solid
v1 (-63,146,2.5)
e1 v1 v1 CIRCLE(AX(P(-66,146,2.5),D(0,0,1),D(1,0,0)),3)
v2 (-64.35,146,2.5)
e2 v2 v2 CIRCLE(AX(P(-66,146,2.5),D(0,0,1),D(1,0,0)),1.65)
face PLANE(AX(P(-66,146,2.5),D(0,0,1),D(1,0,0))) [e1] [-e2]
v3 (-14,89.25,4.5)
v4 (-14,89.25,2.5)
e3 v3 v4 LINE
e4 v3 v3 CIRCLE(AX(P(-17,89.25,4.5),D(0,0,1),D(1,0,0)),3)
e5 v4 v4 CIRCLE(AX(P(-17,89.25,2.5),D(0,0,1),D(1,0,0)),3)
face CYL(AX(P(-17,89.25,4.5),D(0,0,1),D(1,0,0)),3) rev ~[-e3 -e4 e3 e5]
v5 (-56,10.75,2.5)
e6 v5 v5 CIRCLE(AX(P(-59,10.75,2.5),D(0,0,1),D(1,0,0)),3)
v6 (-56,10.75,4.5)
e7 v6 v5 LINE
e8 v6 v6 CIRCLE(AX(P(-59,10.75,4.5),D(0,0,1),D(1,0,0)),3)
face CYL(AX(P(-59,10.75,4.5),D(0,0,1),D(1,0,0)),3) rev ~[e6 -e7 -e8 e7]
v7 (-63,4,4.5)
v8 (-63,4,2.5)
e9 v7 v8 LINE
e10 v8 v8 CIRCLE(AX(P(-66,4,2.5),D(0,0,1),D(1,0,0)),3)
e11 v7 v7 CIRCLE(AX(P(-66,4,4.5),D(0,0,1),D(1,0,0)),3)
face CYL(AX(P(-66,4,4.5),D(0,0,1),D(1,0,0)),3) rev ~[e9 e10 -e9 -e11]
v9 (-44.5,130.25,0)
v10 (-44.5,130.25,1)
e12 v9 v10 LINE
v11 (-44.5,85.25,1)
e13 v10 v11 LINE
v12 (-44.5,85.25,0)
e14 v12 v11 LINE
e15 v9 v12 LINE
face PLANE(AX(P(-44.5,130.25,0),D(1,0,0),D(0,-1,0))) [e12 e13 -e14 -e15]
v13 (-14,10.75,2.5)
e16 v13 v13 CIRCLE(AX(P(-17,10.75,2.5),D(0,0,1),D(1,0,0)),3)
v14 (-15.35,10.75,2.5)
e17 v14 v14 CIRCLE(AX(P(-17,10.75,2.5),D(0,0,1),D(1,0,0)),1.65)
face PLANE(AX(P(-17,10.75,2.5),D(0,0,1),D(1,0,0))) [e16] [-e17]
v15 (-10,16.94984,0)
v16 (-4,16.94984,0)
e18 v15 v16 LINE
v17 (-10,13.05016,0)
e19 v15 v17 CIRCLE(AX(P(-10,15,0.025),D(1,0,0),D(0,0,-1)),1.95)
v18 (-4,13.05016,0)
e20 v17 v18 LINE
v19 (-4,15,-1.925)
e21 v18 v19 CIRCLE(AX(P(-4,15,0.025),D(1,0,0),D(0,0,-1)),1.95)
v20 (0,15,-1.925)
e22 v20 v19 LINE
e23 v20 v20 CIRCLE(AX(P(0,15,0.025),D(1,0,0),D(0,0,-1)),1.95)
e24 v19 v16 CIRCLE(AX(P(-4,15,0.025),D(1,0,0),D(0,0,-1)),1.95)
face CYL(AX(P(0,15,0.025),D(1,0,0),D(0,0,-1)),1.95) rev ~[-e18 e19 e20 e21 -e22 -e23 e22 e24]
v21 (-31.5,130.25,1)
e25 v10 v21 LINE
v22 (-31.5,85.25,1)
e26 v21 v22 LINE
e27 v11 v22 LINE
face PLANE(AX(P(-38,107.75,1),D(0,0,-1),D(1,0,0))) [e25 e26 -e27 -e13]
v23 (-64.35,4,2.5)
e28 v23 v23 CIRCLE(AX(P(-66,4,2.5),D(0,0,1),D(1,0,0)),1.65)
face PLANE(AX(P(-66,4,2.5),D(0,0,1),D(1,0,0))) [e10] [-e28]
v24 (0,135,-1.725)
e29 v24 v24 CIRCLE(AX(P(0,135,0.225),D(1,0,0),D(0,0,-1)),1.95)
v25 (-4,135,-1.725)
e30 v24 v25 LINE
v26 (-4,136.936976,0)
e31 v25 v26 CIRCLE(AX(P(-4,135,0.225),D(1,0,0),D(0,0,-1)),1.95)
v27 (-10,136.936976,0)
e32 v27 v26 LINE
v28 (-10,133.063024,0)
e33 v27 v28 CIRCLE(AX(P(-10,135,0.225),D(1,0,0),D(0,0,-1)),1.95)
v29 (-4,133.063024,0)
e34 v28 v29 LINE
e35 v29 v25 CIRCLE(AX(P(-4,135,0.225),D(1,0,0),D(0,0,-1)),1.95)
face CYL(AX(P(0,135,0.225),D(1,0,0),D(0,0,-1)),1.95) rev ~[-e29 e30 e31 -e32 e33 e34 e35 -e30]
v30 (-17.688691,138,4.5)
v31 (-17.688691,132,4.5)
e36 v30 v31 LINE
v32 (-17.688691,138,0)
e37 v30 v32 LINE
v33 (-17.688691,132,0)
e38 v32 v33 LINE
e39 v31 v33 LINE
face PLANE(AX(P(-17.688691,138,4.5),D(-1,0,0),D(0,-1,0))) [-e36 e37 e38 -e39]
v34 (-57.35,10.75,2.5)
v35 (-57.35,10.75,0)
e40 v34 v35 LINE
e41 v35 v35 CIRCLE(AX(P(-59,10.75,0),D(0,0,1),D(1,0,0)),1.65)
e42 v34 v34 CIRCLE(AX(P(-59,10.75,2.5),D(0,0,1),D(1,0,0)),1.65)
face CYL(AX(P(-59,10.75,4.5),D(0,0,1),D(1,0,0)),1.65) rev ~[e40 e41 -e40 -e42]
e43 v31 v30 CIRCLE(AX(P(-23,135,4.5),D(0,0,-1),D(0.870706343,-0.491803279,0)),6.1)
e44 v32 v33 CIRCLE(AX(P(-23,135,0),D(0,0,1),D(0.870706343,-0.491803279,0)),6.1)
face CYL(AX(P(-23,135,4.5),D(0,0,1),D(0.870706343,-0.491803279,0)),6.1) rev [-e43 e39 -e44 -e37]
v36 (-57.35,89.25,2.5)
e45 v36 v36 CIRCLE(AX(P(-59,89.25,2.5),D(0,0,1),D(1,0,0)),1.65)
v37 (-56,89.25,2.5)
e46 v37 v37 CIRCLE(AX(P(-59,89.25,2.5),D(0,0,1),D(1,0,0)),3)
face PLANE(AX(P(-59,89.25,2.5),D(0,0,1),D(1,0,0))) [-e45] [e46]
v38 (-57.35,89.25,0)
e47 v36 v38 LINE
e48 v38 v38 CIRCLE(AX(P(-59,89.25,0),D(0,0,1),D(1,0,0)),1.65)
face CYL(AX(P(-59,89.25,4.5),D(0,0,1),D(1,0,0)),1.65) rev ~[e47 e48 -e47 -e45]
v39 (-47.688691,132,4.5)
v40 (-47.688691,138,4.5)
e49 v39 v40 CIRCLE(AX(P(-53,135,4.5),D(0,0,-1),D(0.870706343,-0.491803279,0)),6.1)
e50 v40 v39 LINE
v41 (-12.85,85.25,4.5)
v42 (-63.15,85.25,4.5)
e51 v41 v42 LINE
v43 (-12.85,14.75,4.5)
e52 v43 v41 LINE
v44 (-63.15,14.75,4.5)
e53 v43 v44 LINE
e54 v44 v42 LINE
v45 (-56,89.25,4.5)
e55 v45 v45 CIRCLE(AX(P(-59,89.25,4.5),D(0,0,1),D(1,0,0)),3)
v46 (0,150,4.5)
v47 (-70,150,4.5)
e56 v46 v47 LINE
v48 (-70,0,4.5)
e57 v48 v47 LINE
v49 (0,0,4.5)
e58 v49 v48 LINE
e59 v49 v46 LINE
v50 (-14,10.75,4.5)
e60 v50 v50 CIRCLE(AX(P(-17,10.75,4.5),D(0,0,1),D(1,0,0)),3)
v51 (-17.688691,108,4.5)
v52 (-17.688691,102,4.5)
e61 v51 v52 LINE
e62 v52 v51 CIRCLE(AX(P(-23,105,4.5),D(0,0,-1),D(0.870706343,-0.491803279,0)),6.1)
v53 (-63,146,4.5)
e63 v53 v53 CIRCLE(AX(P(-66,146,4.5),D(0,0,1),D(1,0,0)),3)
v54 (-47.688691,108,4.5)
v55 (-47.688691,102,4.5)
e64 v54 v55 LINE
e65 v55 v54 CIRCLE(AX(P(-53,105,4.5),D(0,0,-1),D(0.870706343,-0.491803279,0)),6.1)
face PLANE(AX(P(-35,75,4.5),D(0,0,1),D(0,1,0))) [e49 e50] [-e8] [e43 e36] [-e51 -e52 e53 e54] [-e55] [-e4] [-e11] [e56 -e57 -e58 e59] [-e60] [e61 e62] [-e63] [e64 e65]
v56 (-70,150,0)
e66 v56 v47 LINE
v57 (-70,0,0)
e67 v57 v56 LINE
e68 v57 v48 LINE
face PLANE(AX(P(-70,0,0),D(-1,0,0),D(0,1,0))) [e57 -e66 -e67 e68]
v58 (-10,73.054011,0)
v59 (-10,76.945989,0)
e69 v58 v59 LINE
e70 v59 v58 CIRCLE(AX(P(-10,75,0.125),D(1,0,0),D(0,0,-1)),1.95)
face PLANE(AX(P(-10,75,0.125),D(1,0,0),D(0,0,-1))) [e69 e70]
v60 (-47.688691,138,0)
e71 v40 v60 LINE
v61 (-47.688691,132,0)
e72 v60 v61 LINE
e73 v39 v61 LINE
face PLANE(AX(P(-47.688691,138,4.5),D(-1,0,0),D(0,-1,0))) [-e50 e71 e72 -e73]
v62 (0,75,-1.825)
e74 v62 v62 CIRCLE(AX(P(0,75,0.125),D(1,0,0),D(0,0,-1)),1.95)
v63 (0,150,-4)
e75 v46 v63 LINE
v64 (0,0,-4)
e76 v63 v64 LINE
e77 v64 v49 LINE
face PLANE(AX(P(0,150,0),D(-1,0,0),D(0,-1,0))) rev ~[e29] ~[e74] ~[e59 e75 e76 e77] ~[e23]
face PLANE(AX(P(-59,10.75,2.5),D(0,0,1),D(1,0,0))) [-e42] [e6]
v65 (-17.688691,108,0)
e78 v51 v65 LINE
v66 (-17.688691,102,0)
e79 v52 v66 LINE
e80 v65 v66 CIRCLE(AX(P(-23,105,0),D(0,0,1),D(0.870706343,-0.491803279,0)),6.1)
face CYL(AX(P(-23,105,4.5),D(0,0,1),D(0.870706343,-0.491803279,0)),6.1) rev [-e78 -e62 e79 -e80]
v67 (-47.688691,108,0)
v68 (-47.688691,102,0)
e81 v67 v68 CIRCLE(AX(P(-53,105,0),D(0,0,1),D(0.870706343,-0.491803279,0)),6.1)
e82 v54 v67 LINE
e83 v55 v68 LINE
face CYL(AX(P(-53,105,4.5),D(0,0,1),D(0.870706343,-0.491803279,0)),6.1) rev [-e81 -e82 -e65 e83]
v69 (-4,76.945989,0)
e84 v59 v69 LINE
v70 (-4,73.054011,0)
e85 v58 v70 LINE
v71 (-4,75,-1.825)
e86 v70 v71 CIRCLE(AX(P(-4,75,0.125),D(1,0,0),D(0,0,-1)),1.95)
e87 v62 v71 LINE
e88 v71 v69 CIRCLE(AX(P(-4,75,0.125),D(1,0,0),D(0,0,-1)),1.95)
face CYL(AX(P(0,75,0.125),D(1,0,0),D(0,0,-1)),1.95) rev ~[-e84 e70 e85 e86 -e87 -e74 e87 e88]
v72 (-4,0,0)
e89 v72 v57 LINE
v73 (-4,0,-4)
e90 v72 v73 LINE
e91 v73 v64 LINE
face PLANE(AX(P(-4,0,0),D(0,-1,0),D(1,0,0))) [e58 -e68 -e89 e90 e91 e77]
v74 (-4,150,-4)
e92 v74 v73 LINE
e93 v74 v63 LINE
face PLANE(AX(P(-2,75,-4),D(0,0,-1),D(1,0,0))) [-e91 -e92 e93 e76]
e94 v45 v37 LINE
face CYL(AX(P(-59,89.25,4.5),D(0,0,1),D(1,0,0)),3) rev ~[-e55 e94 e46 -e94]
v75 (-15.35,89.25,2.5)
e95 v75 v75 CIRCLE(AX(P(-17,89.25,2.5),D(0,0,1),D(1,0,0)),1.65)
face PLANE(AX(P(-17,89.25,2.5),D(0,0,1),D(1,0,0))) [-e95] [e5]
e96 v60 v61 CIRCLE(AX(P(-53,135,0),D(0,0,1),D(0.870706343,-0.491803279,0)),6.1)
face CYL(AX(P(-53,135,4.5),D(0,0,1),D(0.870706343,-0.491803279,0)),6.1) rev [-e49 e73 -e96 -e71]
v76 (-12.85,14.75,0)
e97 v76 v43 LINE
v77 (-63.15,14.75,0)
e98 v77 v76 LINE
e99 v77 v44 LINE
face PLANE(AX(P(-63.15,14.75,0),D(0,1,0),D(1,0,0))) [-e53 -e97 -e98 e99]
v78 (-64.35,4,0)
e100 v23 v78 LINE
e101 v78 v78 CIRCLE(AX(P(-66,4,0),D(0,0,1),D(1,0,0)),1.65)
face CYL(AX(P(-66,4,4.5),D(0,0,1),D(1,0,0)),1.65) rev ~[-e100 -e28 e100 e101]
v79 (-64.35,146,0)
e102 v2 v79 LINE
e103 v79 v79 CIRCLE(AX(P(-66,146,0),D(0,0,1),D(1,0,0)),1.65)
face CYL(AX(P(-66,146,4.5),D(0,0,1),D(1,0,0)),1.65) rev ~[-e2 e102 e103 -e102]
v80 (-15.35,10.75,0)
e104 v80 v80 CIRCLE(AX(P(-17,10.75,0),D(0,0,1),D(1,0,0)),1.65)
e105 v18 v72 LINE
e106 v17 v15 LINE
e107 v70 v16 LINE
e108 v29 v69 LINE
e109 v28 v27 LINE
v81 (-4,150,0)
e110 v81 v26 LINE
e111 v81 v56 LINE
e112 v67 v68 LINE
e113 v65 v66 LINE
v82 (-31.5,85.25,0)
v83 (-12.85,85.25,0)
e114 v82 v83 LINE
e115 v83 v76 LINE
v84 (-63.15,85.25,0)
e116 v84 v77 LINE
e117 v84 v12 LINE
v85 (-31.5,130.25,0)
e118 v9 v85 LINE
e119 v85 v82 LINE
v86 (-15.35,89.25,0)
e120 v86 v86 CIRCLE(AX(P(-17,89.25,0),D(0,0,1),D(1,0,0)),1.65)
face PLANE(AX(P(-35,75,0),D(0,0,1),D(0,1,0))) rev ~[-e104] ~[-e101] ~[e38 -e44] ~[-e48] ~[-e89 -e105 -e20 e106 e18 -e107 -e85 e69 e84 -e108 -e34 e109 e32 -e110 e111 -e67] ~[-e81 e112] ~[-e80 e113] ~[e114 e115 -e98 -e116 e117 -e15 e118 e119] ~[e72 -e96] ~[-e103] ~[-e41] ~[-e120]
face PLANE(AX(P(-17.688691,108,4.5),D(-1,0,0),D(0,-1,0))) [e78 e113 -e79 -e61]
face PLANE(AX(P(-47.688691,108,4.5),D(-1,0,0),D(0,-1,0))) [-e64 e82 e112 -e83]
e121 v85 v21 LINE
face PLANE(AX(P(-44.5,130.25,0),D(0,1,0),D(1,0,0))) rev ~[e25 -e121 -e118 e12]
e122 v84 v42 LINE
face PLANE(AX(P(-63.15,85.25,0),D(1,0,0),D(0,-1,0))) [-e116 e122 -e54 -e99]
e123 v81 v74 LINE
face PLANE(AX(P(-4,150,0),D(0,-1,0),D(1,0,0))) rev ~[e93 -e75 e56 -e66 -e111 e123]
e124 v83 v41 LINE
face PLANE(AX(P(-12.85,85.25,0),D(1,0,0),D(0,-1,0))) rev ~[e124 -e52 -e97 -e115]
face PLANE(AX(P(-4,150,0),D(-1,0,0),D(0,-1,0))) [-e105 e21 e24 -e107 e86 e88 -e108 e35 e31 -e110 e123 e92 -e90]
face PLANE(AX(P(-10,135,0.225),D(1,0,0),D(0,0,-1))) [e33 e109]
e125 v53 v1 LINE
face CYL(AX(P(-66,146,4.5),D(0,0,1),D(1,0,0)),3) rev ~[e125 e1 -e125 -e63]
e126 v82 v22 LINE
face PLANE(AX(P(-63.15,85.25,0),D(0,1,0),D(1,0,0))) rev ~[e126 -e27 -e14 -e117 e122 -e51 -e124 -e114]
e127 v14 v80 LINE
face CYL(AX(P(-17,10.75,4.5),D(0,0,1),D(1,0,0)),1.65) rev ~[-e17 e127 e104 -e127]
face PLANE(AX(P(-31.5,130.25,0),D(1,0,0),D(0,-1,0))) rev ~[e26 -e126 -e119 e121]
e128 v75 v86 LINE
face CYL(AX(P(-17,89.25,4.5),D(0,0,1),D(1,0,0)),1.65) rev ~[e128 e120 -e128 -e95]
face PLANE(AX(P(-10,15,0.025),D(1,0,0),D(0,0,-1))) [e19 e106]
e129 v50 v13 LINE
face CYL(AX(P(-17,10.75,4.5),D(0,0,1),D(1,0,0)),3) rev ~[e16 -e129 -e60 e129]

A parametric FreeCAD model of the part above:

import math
import FreeCAD as App
import Part
import Sketcher


def add_polygon(sketch, points):
    """Adds a closed chain of lines whose ends are joined by coincident constraints."""
    first, n = sketch.GeometryCount, len(points)
    for a, b in zip(points, points[1:] + points[:1]):
        sketch.addGeometry(Part.LineSegment(App.Vector(*a, 0), App.Vector(*b, 0)), False)
    for i in range(n):
        sketch.addConstraint(Sketcher.Constraint("Coincident", first + i, 2, first + (i + 1) % n, 1))

doc = App.newDocument("Part")
body = doc.addObject("PartDesign::Body", "Body")

sketch1 = body.newObject("Sketcher::SketchObject", "Sketch")
sketch1.AttachmentSupport = (doc.getObject("XY_Plane"), [""])
sketch1.MapMode = "FlatFace"
add_polygon(sketch1, [(-70, 0), (0, 0), (0, 150), (-70, 150)])
sketch1.addConstraint([
    Sketcher.Constraint("Horizontal", 0),
    Sketcher.Constraint("Vertical", 1),
    Sketcher.Constraint("Horizontal", 2),
    Sketcher.Constraint("Vertical", 3),
    Sketcher.Constraint("Coincident", 0, 2, -1, 1),
    Sketcher.Constraint("DistanceX", 0, 1, 0, 2, 70.0),
    Sketcher.Constraint("DistanceY", 1, 1, 1, 2, 150.0),
])
pad1 = body.newObject("PartDesign::Pad", "Pad")
pad1.Profile = sketch1
pad1.Length = 4.5

sketch2 = body.newObject("Sketcher::SketchObject", "Sketch001")
sketch2.AttachmentSupport = (doc.getObject("XY_Plane"), [""])
sketch2.MapMode = "FlatFace"
add_polygon(sketch2, [(-63, 15), (-63, 85), (-13, 85), (-13, 15)])
sketch2.addConstraint([
    Sketcher.Constraint("Vertical", 0),
    Sketcher.Constraint("Horizontal", 1),
    Sketcher.Constraint("Vertical", 2),
    Sketcher.Constraint("Horizontal", 3),
    Sketcher.Constraint("DistanceX", 1, 1, 1, 2, 50.3),
    Sketcher.Constraint("DistanceY", 0, 1, 0, 2, 70.5),
    Sketcher.Constraint("DistanceX", 0, 2, -1, 1, 63.15),
    Sketcher.Constraint("DistanceY", -1, 1, 0, 2, 85.25),
])
pocket1 = body.newObject("PartDesign::Pocket", "Pocket")
pocket1.Profile = sketch2
pocket1.Type = "ThroughAll"
pocket1.Reversed = True

sketch3 = body.newObject("Sketcher::SketchObject", "Sketch002")
sketch3.AttachmentSupport = (doc.getObject("XY_Plane"), [""])
sketch3.MapMode = "FlatFace"
sketch3.AttachmentOffset = App.Placement(App.Vector(0, 0, 4.5), App.Rotation())
sketch3.addGeometry([
    Part.LineSegment(App.Vector(-48, 102, 0), App.Vector(-48, 108, 0)),
    Part.ArcOfCircle(Part.Circle(App.Vector(-53, 105, 0), App.Vector(0, 0, 1), 6), math.radians(29), math.radians(331)),
    Part.LineSegment(App.Vector(-48, 132, 0), App.Vector(-48, 138, 0)),
    Part.ArcOfCircle(Part.Circle(App.Vector(-53, 135, 0), App.Vector(0, 0, 1), 6), math.radians(29), math.radians(331)),
    Part.LineSegment(App.Vector(-18, 132, 0), App.Vector(-18, 138, 0)),
    Part.ArcOfCircle(Part.Circle(App.Vector(-23, 135, 0), App.Vector(0, 0, 1), 6), math.radians(29), math.radians(331)),
    Part.LineSegment(App.Vector(-18, 102, 0), App.Vector(-18, 108, 0)),
    Part.ArcOfCircle(Part.Circle(App.Vector(-23, 105, 0), App.Vector(0, 0, 1), 6), math.radians(29), math.radians(331)),
], False)
sketch3.addConstraint([
    Sketcher.Constraint("Coincident", 0, 1, 1, 2),
    Sketcher.Constraint("Coincident", 1, 1, 0, 2),
    Sketcher.Constraint("Coincident", 2, 1, 3, 2),
    Sketcher.Constraint("Coincident", 3, 1, 2, 2),
    Sketcher.Constraint("Coincident", 4, 1, 5, 2),
    Sketcher.Constraint("Coincident", 5, 1, 4, 2),
    Sketcher.Constraint("Coincident", 6, 1, 7, 2),
    Sketcher.Constraint("Coincident", 7, 1, 6, 2),
    Sketcher.Constraint("Vertical", 0),
    Sketcher.Constraint("Vertical", 2),
    Sketcher.Constraint("Vertical", 4),
    Sketcher.Constraint("Vertical", 6),
    Sketcher.Constraint("Equal", 1, 3),
    Sketcher.Constraint("Equal", 3, 5),
    Sketcher.Constraint("Equal", 5, 7),
    Sketcher.Constraint("Horizontal", 3, 3, 5, 3),
    Sketcher.Constraint("Horizontal", 1, 3, 7, 3),
    Sketcher.Constraint("Horizontal", 2, 1, 4, 1),
    Sketcher.Constraint("Horizontal", 0, 1, 6, 1),
    Sketcher.Constraint("Vertical", 1, 3, 3, 3),
    Sketcher.Constraint("Vertical", 5, 3, 7, 3),
    Sketcher.Constraint("Vertical", 1, 1, 2, 1),
    Sketcher.Constraint("Radius", 1, 6.1),
    Sketcher.Constraint("DistanceY", 0, 1, 0, 2, 6.0),
    Sketcher.Constraint("DistanceX", 1, 3, -1, 1, 53.0),
    Sketcher.Constraint("DistanceY", -1, 1, 1, 3, 105.0),
    Sketcher.Constraint("DistanceY", -1, 1, 3, 3, 135.0),
    Sketcher.Constraint("DistanceX", 5, 3, -1, 1, 23.0),
])
pocket2 = body.newObject("PartDesign::Pocket", "Pocket001")
pocket2.Profile = sketch3
pocket2.Type = "ThroughAll"

sketch4 = body.newObject("Sketcher::SketchObject", "Sketch003")
sketch4.AttachmentSupport = (doc.getObject("XY_Plane"), [""])
sketch4.MapMode = "FlatFace"
sketch4.AttachmentOffset = App.Placement(App.Vector(0, 0, 4.5), App.Rotation())
sketch4.addGeometry([
    Part.Circle(App.Vector(-59, 89.2, 0), App.Vector(0, 0, 1), 1.6),
    Part.Circle(App.Vector(-17, 89.2, 0), App.Vector(0, 0, 1), 1.6),
    Part.Circle(App.Vector(-17, 10.8, 0), App.Vector(0, 0, 1), 1.6),
    Part.Circle(App.Vector(-59, 10.8, 0), App.Vector(0, 0, 1), 1.6),
    Part.Circle(App.Vector(-66, 146, 0), App.Vector(0, 0, 1), 1.6),
    Part.Circle(App.Vector(-66, 4, 0), App.Vector(0, 0, 1), 1.6),
], False)
sketch4.addConstraint([
    Sketcher.Constraint("Equal", 0, 1),
    Sketcher.Constraint("Equal", 1, 2),
    Sketcher.Constraint("Equal", 2, 3),
    Sketcher.Constraint("Equal", 3, 4),
    Sketcher.Constraint("Equal", 4, 5),
    Sketcher.Constraint("Horizontal", 0, 3, 1, 3),
    Sketcher.Constraint("Horizontal", 2, 3, 3, 3),
    Sketcher.Constraint("Vertical", 1, 3, 2, 3),
    Sketcher.Constraint("Vertical", 0, 3, 3, 3),
    Sketcher.Constraint("Vertical", 4, 3, 5, 3),
    Sketcher.Constraint("Diameter", 0, 3.3),
    Sketcher.Constraint("DistanceX", 0, 3, -1, 1, 59.0),
    Sketcher.Constraint("DistanceX", 1, 3, -1, 1, 17.0),
    Sketcher.Constraint("DistanceX", 4, 3, -1, 1, 66.0),
    Sketcher.Constraint("DistanceY", -1, 1, 4, 3, 146.0),
    Sketcher.Constraint("DistanceY", -1, 1, 5, 3, 4.0),
    Sketcher.Constraint("DistanceY", 2, 3, 1, 3, 78.5),
    Sketcher.Constraint("DistanceY", -1, 1, 0, 3, 89.25),
])
pocket3 = body.newObject("PartDesign::Pocket", "Pocket002")
pocket3.Profile = sketch4
pocket3.Type = "ThroughAll"

sketch5 = body.newObject("Sketcher::SketchObject", "Sketch004")
sketch5.AttachmentSupport = (doc.getObject("XY_Plane"), [""])
sketch5.MapMode = "FlatFace"
sketch5.AttachmentOffset = App.Placement(App.Vector(0, 0, 4.5), App.Rotation())
sketch5.addGeometry([
    Part.Circle(App.Vector(-59, 89.2, 0), App.Vector(0, 0, 1), 3),
    Part.Circle(App.Vector(-17, 89.2, 0), App.Vector(0, 0, 1), 3),
    Part.Circle(App.Vector(-17, 10.8, 0), App.Vector(0, 0, 1), 3),
    Part.Circle(App.Vector(-59, 10.8, 0), App.Vector(0, 0, 1), 3),
    Part.Circle(App.Vector(-66, 146, 0), App.Vector(0, 0, 1), 3),
    Part.Circle(App.Vector(-66, 4, 0), App.Vector(0, 0, 1), 3),
], False)
sketch5.addConstraint([
    Sketcher.Constraint("Equal", 0, 1),
    Sketcher.Constraint("Equal", 1, 2),
    Sketcher.Constraint("Equal", 2, 3),
    Sketcher.Constraint("Equal", 3, 4),
    Sketcher.Constraint("Equal", 4, 5),
    Sketcher.Constraint("Horizontal", 0, 3, 1, 3),
    Sketcher.Constraint("Horizontal", 2, 3, 3, 3),
    Sketcher.Constraint("Vertical", 1, 3, 2, 3),
    Sketcher.Constraint("Vertical", 0, 3, 3, 3),
    Sketcher.Constraint("Vertical", 4, 3, 5, 3),
    Sketcher.Constraint("Diameter", 0, 6.0),
    Sketcher.Constraint("DistanceX", 0, 3, -1, 1, 59.0),
    Sketcher.Constraint("DistanceX", 1, 3, -1, 1, 17.0),
    Sketcher.Constraint("DistanceX", 4, 3, -1, 1, 66.0),
    Sketcher.Constraint("DistanceY", -1, 1, 4, 3, 146.0),
    Sketcher.Constraint("DistanceY", -1, 1, 5, 3, 4.0),
    Sketcher.Constraint("DistanceY", 2, 3, 1, 3, 78.5),
    Sketcher.Constraint("DistanceY", -1, 1, 0, 3, 89.25),
])
pocket4 = body.newObject("PartDesign::Pocket", "Pocket003")
pocket4.Profile = sketch5
pocket4.Length = 2

sketch6 = body.newObject("Sketcher::SketchObject", "Sketch005")
sketch6.AttachmentSupport = (doc.getObject("XY_Plane"), [""])
sketch6.MapMode = "FlatFace"
add_polygon(sketch6, [(-4, 0), (-4, 150), (0, 150), (0, 0)])
sketch6.addConstraint([
    Sketcher.Constraint("Vertical", 0),
    Sketcher.Constraint("Horizontal", 1),
    Sketcher.Constraint("Vertical", 2),
    Sketcher.Constraint("Horizontal", 3),
    Sketcher.Constraint("Coincident", 2, 2, -1, 1),
    Sketcher.Constraint("DistanceX", 1, 1, 1, 2, 4.0),
    Sketcher.Constraint("DistanceY", 0, 1, 0, 2, 150.0),
])
pad2 = body.newObject("PartDesign::Pad", "Pad001")
pad2.Profile = sketch6
pad2.Length = 4
pad2.Reversed = True

sketch7 = body.newObject("Sketcher::SketchObject", "Sketch006")
sketch7.AttachmentSupport = (doc.getObject("YZ_Plane"), [""])
sketch7.MapMode = "FlatFace"
sketch7.addGeometry([
    Part.Circle(App.Vector(15, 0, 0), App.Vector(0, 0, 1), 1.9),
    Part.Circle(App.Vector(75, 0.1, 0), App.Vector(0, 0, 1), 1.9),
    Part.Circle(App.Vector(135, 0.2, 0), App.Vector(0, 0, 1), 1.9),
], False)
sketch7.addConstraint([
    Sketcher.Constraint("Equal", 0, 1),
    Sketcher.Constraint("Equal", 1, 2),
    Sketcher.Constraint("Diameter", 0, 3.9),
    Sketcher.Constraint("DistanceX", -1, 1, 0, 3, 15.0),
    Sketcher.Constraint("DistanceX", -1, 1, 1, 3, 75.0),
    Sketcher.Constraint("DistanceX", -1, 1, 2, 3, 135.0),
    Sketcher.Constraint("DistanceY", 0, 3, 1, 3, 0.1),
    Sketcher.Constraint("DistanceY", 1, 3, 2, 3, 0.1),
    Sketcher.Constraint("DistanceY", -1, 1, 0, 3, 0.025),
])
pocket5 = body.newObject("PartDesign::Pocket", "Pocket004")
pocket5.Profile = sketch7
pocket5.Length = 10

sketch8 = body.newObject("Sketcher::SketchObject", "Sketch007")
sketch8.AttachmentSupport = (doc.getObject("XY_Plane"), [""])
sketch8.MapMode = "FlatFace"
add_polygon(sketch8, [(-44, 85), (-44, 130), (-32, 130), (-32, 85)])
sketch8.addConstraint([
    Sketcher.Constraint("Vertical", 0),
    Sketcher.Constraint("Horizontal", 1),
    Sketcher.Constraint("Vertical", 2),
    Sketcher.Constraint("Horizontal", 3),
    Sketcher.Constraint("DistanceX", 1, 1, 1, 2, 13.0),
    Sketcher.Constraint("DistanceY", 0, 1, 0, 2, 45.0),
    Sketcher.Constraint("DistanceX", 0, 2, -1, 1, 44.5),
    Sketcher.Constraint("DistanceY", -1, 1, 0, 2, 130.25),
])
pocket6 = body.newObject("PartDesign::Pocket", "Pocket005")
pocket6.Profile = sketch8
pocket6.Length = 1
pocket6.Reversed = True

doc.recompute()
